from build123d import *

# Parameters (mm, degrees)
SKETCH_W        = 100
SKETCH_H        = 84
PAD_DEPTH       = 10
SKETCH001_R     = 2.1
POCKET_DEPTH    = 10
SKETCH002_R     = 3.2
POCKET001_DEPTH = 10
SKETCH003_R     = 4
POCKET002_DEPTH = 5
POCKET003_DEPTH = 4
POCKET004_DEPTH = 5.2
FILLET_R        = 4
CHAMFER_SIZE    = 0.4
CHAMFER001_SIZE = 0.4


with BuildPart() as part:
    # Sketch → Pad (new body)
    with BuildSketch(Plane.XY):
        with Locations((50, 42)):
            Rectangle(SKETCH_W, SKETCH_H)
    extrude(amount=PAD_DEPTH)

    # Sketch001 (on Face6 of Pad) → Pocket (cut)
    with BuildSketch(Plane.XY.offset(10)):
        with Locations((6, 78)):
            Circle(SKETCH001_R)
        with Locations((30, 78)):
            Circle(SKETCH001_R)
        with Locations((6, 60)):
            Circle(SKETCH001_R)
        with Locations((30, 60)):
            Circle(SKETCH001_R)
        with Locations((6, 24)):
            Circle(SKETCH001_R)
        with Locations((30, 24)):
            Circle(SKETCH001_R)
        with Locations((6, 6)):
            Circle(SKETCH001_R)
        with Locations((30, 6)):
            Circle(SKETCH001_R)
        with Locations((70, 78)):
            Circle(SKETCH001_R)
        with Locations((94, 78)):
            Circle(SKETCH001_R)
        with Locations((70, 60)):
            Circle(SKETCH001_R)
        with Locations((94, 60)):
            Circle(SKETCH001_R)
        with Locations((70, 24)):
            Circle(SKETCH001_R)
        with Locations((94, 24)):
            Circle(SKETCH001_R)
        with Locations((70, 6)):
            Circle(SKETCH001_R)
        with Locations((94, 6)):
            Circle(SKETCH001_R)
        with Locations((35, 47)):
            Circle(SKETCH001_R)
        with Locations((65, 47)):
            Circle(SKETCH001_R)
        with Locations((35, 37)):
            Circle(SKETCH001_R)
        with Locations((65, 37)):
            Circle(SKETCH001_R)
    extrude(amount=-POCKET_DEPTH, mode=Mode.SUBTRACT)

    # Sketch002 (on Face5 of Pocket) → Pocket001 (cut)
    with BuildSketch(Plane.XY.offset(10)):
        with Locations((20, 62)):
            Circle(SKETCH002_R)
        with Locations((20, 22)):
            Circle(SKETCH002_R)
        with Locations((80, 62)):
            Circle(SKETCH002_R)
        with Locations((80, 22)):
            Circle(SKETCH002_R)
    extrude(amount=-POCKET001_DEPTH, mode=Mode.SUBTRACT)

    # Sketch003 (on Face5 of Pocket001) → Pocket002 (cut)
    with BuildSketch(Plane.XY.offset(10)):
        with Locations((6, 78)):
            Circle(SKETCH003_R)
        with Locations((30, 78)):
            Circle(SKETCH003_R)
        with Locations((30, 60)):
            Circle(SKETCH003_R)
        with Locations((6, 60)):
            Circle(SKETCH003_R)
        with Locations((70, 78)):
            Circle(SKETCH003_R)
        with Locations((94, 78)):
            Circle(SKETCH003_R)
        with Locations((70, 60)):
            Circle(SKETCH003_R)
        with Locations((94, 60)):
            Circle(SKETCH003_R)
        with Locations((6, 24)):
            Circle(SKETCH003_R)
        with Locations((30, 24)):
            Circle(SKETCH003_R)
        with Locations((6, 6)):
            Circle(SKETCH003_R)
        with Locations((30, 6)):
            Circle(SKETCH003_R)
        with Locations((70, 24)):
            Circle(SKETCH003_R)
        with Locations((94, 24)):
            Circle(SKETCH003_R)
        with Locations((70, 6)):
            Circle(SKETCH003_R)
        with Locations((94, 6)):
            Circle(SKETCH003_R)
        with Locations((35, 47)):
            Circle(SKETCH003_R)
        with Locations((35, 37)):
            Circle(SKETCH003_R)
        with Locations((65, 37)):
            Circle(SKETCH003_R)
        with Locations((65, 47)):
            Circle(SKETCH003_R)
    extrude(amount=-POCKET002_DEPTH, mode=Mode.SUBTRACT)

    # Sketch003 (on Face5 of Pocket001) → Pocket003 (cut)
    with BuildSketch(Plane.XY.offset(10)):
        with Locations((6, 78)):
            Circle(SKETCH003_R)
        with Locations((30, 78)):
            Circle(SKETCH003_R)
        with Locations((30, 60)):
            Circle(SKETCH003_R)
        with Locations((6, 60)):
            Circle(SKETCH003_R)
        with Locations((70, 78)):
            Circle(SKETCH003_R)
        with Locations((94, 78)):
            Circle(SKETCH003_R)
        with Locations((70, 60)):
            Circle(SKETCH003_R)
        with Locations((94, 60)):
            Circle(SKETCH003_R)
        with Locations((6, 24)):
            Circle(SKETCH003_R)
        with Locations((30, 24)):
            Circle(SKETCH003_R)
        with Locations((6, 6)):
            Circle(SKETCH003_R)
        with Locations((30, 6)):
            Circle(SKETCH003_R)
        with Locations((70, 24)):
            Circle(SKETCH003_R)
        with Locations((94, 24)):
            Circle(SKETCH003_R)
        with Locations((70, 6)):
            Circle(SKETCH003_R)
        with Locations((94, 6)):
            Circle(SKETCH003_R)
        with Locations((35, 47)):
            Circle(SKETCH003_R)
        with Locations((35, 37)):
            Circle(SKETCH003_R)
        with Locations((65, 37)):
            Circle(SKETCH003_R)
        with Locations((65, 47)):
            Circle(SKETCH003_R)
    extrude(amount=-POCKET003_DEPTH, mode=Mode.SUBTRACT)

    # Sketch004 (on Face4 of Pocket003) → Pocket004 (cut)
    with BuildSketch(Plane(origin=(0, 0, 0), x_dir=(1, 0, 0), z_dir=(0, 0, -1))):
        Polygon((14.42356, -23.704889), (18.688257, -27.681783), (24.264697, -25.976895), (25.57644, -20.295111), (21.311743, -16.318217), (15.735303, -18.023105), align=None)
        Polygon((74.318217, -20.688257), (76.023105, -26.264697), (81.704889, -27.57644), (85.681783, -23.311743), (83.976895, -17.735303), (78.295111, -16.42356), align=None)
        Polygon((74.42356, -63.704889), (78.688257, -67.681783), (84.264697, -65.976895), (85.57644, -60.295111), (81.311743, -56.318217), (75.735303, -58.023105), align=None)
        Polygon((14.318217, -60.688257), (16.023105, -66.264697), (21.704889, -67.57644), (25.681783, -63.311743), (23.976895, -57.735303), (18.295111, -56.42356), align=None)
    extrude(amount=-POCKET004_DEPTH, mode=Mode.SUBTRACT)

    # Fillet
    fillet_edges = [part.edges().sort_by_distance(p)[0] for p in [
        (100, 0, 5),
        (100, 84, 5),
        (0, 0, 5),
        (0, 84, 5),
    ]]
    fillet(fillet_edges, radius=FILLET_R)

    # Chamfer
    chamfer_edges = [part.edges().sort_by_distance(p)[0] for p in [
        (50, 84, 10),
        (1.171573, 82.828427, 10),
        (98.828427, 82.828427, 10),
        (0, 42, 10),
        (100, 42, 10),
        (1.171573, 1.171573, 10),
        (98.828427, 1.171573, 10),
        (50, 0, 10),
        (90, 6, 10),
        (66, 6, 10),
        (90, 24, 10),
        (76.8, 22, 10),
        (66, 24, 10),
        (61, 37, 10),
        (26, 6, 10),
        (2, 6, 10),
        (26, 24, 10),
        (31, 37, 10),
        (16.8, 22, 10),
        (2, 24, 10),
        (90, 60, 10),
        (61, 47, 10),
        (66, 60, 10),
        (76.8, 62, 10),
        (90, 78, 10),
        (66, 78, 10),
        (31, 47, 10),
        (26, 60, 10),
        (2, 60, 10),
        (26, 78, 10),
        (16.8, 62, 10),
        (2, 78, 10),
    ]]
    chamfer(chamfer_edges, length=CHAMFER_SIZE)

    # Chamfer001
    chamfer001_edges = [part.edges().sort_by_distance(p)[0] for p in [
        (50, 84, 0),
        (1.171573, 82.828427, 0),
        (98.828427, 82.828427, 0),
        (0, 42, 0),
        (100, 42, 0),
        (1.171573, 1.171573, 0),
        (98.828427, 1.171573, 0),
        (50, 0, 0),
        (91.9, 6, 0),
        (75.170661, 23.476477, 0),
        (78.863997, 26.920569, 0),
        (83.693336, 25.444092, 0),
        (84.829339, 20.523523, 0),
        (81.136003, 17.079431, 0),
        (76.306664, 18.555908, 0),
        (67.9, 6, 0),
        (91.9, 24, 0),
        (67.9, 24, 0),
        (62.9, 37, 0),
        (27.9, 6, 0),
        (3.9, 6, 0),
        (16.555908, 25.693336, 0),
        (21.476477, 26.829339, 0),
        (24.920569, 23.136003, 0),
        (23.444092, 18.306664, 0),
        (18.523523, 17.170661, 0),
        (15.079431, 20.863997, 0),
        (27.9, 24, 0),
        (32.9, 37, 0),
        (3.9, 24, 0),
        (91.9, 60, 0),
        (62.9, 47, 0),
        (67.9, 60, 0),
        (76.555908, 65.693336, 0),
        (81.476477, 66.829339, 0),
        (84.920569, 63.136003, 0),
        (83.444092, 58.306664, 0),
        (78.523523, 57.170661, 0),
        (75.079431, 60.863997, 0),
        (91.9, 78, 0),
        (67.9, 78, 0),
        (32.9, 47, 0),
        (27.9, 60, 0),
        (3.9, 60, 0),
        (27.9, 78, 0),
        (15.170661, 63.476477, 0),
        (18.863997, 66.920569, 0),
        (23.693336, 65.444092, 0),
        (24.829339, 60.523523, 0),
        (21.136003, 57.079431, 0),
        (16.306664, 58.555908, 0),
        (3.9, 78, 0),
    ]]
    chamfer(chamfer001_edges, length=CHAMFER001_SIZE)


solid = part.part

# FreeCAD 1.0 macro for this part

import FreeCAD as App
import Part
import Sketcher
from FreeCAD import Vector
Q = App.Units.Quantity


def edges_at(feature, points):
    """Names of the edges that pass closest to the given points."""
    edges = feature.Shape.Edges
    near = lambda p: min(range(len(edges)), key=lambda i: edges[i].distToShape(Part.Vertex(*p))[0])
    return sorted({f"Edge{near(p) + 1}" for p in points})

doc = App.newDocument("Part")
body = doc.addObject("PartDesign::Body", "Body")

sketch1 = doc.addObject("Sketcher::SketchObject", "Sketch")
body.addObject(sketch1)
sketch1.AttachmentSupport = (doc.XY_Plane, [""])
sketch1.MapMode = "FlatFace"
sketch1.addGeometry([
    Part.LineSegment(Vector(0, 84, 0), Vector(0, 0, 0)),
    Part.LineSegment(Vector(0, 0, 0), Vector(100, 0, 0)),
    Part.LineSegment(Vector(100, 0, 0), Vector(100, 84, 0)),
    Part.LineSegment(Vector(100, 84, 0), Vector(0, 84, 0)),
], False)
sketch1.addConstraint([
    Sketcher.Constraint("Coincident", 0, 2, 1, 1),
    Sketcher.Constraint("Coincident", 1, 2, 2, 1),
    Sketcher.Constraint("Coincident", 2, 2, 3, 1),
    Sketcher.Constraint("Coincident", 3, 2, 0, 1),
    Sketcher.Constraint("Vertical", 0),
    Sketcher.Constraint("Horizontal", 1),
    Sketcher.Constraint("Vertical", 2),
    Sketcher.Constraint("Horizontal", 3),
    Sketcher.Constraint("Coincident", 0, 2, -1, 1),
    Sketcher.Constraint("DistanceX", 1, 1, 1, 2, 100.0),
    Sketcher.Constraint("DistanceY", 0, 2, 0, 1, 84.0),
])
pad1 = doc.addObject("PartDesign::Pad", "Pad")
body.addObject(pad1)
pad1.Profile = sketch1
pad1.Length = 10

sketch2 = doc.addObject("Sketcher::SketchObject", "Sketch001")
body.addObject(sketch2)
sketch2.AttachmentSupport = (doc.XY_Plane, [""])
sketch2.MapMode = "FlatFace"
sketch2.AttachmentOffset = App.Placement(Vector(0, 0, 10), App.Rotation())
sketch2.addGeometry([
    Part.Circle(Vector(6, 78, 0), Vector(0, 0, 1), 2.1),
    Part.Circle(Vector(30, 78, 0), Vector(0, 0, 1), 2.1),
    Part.Circle(Vector(6, 60, 0), Vector(0, 0, 1), 2.1),
    Part.Circle(Vector(30, 60, 0), Vector(0, 0, 1), 2.1),
    Part.Circle(Vector(6, 24, 0), Vector(0, 0, 1), 2.1),
    Part.Circle(Vector(30, 24, 0), Vector(0, 0, 1), 2.1),
    Part.Circle(Vector(6, 6, 0), Vector(0, 0, 1), 2.1),
    Part.Circle(Vector(30, 6, 0), Vector(0, 0, 1), 2.1),
    Part.Circle(Vector(70, 78, 0), Vector(0, 0, 1), 2.1),
    Part.Circle(Vector(94, 78, 0), Vector(0, 0, 1), 2.1),
    Part.Circle(Vector(70, 60, 0), Vector(0, 0, 1), 2.1),
    Part.Circle(Vector(94, 60, 0), Vector(0, 0, 1), 2.1),
    Part.Circle(Vector(70, 24, 0), Vector(0, 0, 1), 2.1),
    Part.Circle(Vector(94, 24, 0), Vector(0, 0, 1), 2.1),
    Part.Circle(Vector(70, 6, 0), Vector(0, 0, 1), 2.1),
    Part.Circle(Vector(94, 6, 0), Vector(0, 0, 1), 2.1),
    Part.Circle(Vector(35, 47, 0), Vector(0, 0, 1), 2.1),
    Part.Circle(Vector(65, 47, 0), Vector(0, 0, 1), 2.1),
    Part.Circle(Vector(35, 37, 0), Vector(0, 0, 1), 2.1),
    Part.Circle(Vector(65, 37, 0), Vector(0, 0, 1), 2.1),
], False)
sketch2.addConstraint([
    Sketcher.Constraint("Equal", 0, 1),
    Sketcher.Constraint("Equal", 1, 2),
    Sketcher.Constraint("Equal", 2, 3),
    Sketcher.Constraint("Equal", 3, 4),
    Sketcher.Constraint("Equal", 4, 5),
    Sketcher.Constraint("Equal", 5, 6),
    Sketcher.Constraint("Equal", 6, 7),
    Sketcher.Constraint("Equal", 7, 8),
    Sketcher.Constraint("Equal", 8, 9),
    Sketcher.Constraint("Equal", 9, 10),
    Sketcher.Constraint("Equal", 10, 11),
    Sketcher.Constraint("Equal", 11, 12),
    Sketcher.Constraint("Equal", 12, 13),
    Sketcher.Constraint("Equal", 13, 14),
    Sketcher.Constraint("Equal", 14, 15),
    Sketcher.Constraint("Equal", 15, 16),
    Sketcher.Constraint("Equal", 16, 17),
    Sketcher.Constraint("Equal", 17, 18),
    Sketcher.Constraint("Equal", 18, 19),
    Sketcher.Constraint("Horizontal", 0, 3, 1, 3),
    Sketcher.Constraint("Horizontal", 2, 3, 3, 3),
    Sketcher.Constraint("Horizontal", 4, 3, 5, 3),
    Sketcher.Constraint("Horizontal", 6, 3, 7, 3),
    Sketcher.Constraint("Horizontal", 1, 3, 8, 3),
    Sketcher.Constraint("Horizontal", 8, 3, 9, 3),
    Sketcher.Constraint("Horizontal", 3, 3, 10, 3),
    Sketcher.Constraint("Horizontal", 10, 3, 11, 3),
    Sketcher.Constraint("Horizontal", 5, 3, 12, 3),
    Sketcher.Constraint("Horizontal", 12, 3, 13, 3),
    Sketcher.Constraint("Horizontal", 7, 3, 14, 3),
    Sketcher.Constraint("Horizontal", 14, 3, 15, 3),
    Sketcher.Constraint("Horizontal", 16, 3, 17, 3),
    Sketcher.Constraint("Horizontal", 18, 3, 19, 3),
    Sketcher.Constraint("Vertical", 0, 3, 2, 3),
    Sketcher.Constraint("Vertical", 1, 3, 3, 3),
    Sketcher.Constraint("Vertical", 2, 3, 4, 3),
    Sketcher.Constraint("Vertical", 3, 3, 5, 3),
    Sketcher.Constraint("Vertical", 4, 3, 6, 3),
    Sketcher.Constraint("Vertical", 5, 3, 7, 3),
    Sketcher.Constraint("Vertical", 8, 3, 10, 3),
    Sketcher.Constraint("Vertical", 9, 3, 11, 3),
    Sketcher.Constraint("Vertical", 10, 3, 12, 3),
    Sketcher.Constraint("Vertical", 11, 3, 13, 3),
    Sketcher.Constraint("Vertical", 12, 3, 14, 3),
    Sketcher.Constraint("Vertical", 13, 3, 15, 3),
    Sketcher.Constraint("Vertical", 16, 3, 18, 3),
    Sketcher.Constraint("Vertical", 17, 3, 19, 3),
    Sketcher.Constraint("Diameter", 0, 4.2),
    Sketcher.Constraint("DistanceX", -1, 1, 0, 3, 6.0),
    Sketcher.Constraint("DistanceY", -1, 1, 0, 3, 78.0),
    Sketcher.Constraint("DistanceX", -1, 1, 1, 3, 30.0),
    Sketcher.Constraint("DistanceY", -1, 1, 2, 3, 60.0),
    Sketcher.Constraint("DistanceY", -1, 1, 4, 3, 24.0),
    Sketcher.Constraint("DistanceY", -1, 1, 6, 3, 6.0),
    Sketcher.Constraint("DistanceX", -1, 1, 8, 3, 70.0),
    Sketcher.Constraint("DistanceX", -1, 1, 9, 3, 94.0),
    Sketcher.Constraint("DistanceX", -1, 1, 16, 3, 35.0),
    Sketcher.Constraint("DistanceY", -1, 1, 16, 3, 47.0),
    Sketcher.Constraint("DistanceX", -1, 1, 17, 3, 65.0),
    Sketcher.Constraint("DistanceY", -1, 1, 18, 3, 37.0),
])
pocket1 = doc.addObject("PartDesign::Pocket", "Pocket")
body.addObject(pocket1)
pocket1.Profile = sketch2
pocket1.Length = 10

sketch3 = doc.addObject("Sketcher::SketchObject", "Sketch002")
body.addObject(sketch3)
sketch3.AttachmentSupport = (doc.XY_Plane, [""])
sketch3.MapMode = "FlatFace"
sketch3.AttachmentOffset = App.Placement(Vector(0, 0, 10), App.Rotation())
sketch3.addGeometry([
    Part.Circle(Vector(20, 62, 0), Vector(0, 0, 1), 3.2),
    Part.Circle(Vector(20, 22, 0), Vector(0, 0, 1), 3.2),
    Part.Circle(Vector(80, 62, 0), Vector(0, 0, 1), 3.2),
    Part.Circle(Vector(80, 22, 0), Vector(0, 0, 1), 3.2),
], False)
sketch3.addConstraint([
    Sketcher.Constraint("Equal", 0, 1),
    Sketcher.Constraint("Equal", 1, 2),
    Sketcher.Constraint("Equal", 2, 3),
    Sketcher.Constraint("Horizontal", 0, 3, 2, 3),
    Sketcher.Constraint("Horizontal", 1, 3, 3, 3),
    Sketcher.Constraint("Vertical", 0, 3, 1, 3),
    Sketcher.Constraint("Vertical", 2, 3, 3, 3),
    Sketcher.Constraint("Diameter", 0, 6.4),
    Sketcher.Constraint("DistanceX", -1, 1, 0, 3, 20.0),
    Sketcher.Constraint("DistanceY", -1, 1, 0, 3, 62.0),
    Sketcher.Constraint("DistanceY", -1, 1, 1, 3, 22.0),
    Sketcher.Constraint("DistanceX", -1, 1, 2, 3, 80.0),
])
pocket2 = doc.addObject("PartDesign::Pocket", "Pocket001")
body.addObject(pocket2)
pocket2.Profile = sketch3
pocket2.Length = 10

sketch4 = doc.addObject("Sketcher::SketchObject", "Sketch003")
body.addObject(sketch4)
sketch4.AttachmentSupport = (doc.XY_Plane, [""])
sketch4.MapMode = "FlatFace"
sketch4.AttachmentOffset = App.Placement(Vector(0, 0, 10), App.Rotation())
sketch4.addGeometry([
    Part.Circle(Vector(6, 78, 0), Vector(0, 0, 1), 4),
    Part.Circle(Vector(30, 78, 0), Vector(0, 0, 1), 4),
    Part.Circle(Vector(30, 60, 0), Vector(0, 0, 1), 4),
    Part.Circle(Vector(6, 60, 0), Vector(0, 0, 1), 4),
    Part.Circle(Vector(70, 78, 0), Vector(0, 0, 1), 4),
    Part.Circle(Vector(94, 78, 0), Vector(0, 0, 1), 4),
    Part.Circle(Vector(70, 60, 0), Vector(0, 0, 1), 4),
    Part.Circle(Vector(94, 60, 0), Vector(0, 0, 1), 4),
    Part.Circle(Vector(6, 24, 0), Vector(0, 0, 1), 4),
    Part.Circle(Vector(30, 24, 0), Vector(0, 0, 1), 4),
    Part.Circle(Vector(6, 6, 0), Vector(0, 0, 1), 4),
    Part.Circle(Vector(30, 6, 0), Vector(0, 0, 1), 4),
    Part.Circle(Vector(70, 24, 0), Vector(0, 0, 1), 4),
    Part.Circle(Vector(94, 24, 0), Vector(0, 0, 1), 4),
    Part.Circle(Vector(70, 6, 0), Vector(0, 0, 1), 4),
    Part.Circle(Vector(94, 6, 0), Vector(0, 0, 1), 4),
    Part.Circle(Vector(35, 47, 0), Vector(0, 0, 1), 4),
    Part.Circle(Vector(35, 37, 0), Vector(0, 0, 1), 4),
    Part.Circle(Vector(65, 37, 0), Vector(0, 0, 1), 4),
    Part.Circle(Vector(65, 47, 0), Vector(0, 0, 1), 4),
], False)
sketch4.addConstraint([
    Sketcher.Constraint("Equal", 0, 1),
    Sketcher.Constraint("Equal", 1, 2),
    Sketcher.Constraint("Equal", 2, 3),
    Sketcher.Constraint("Equal", 3, 4),
    Sketcher.Constraint("Equal", 4, 5),
    Sketcher.Constraint("Equal", 5, 6),
    Sketcher.Constraint("Equal", 6, 7),
    Sketcher.Constraint("Equal", 7, 8),
    Sketcher.Constraint("Equal", 8, 9),
    Sketcher.Constraint("Equal", 9, 10),
    Sketcher.Constraint("Equal", 10, 11),
    Sketcher.Constraint("Equal", 11, 12),
    Sketcher.Constraint("Equal", 12, 13),
    Sketcher.Constraint("Equal", 13, 14),
    Sketcher.Constraint("Equal", 14, 15),
    Sketcher.Constraint("Equal", 15, 16),
    Sketcher.Constraint("Equal", 16, 17),
    Sketcher.Constraint("Equal", 17, 18),
    Sketcher.Constraint("Equal", 18, 19),
    Sketcher.Constraint("Horizontal", 0, 3, 1, 3),
    Sketcher.Constraint("Horizontal", 2, 3, 3, 3),
    Sketcher.Constraint("Horizontal", 1, 3, 4, 3),
    Sketcher.Constraint("Horizontal", 4, 3, 5, 3),
    Sketcher.Constraint("Horizontal", 3, 3, 6, 3),
    Sketcher.Constraint("Horizontal", 6, 3, 7, 3),
    Sketcher.Constraint("Horizontal", 8, 3, 9, 3),
    Sketcher.Constraint("Horizontal", 10, 3, 11, 3),
    Sketcher.Constraint("Horizontal", 9, 3, 12, 3),
    Sketcher.Constraint("Horizontal", 12, 3, 13, 3),
    Sketcher.Constraint("Horizontal", 11, 3, 14, 3),
    Sketcher.Constraint("Horizontal", 14, 3, 15, 3),
    Sketcher.Constraint("Horizontal", 17, 3, 18, 3),
    Sketcher.Constraint("Horizontal", 16, 3, 19, 3),
    Sketcher.Constraint("Vertical", 1, 3, 2, 3),
    Sketcher.Constraint("Vertical", 0, 3, 3, 3),
    Sketcher.Constraint("Vertical", 4, 3, 6, 3),
    Sketcher.Constraint("Vertical", 5, 3, 7, 3),
    Sketcher.Constraint("Vertical", 3, 3, 8, 3),
    Sketcher.Constraint("Vertical", 2, 3, 9, 3),
    Sketcher.Constraint("Vertical", 8, 3, 10, 3),
    Sketcher.Constraint("Vertical", 9, 3, 11, 3),
    Sketcher.Constraint("Vertical", 6, 3, 12, 3),
    Sketcher.Constraint("Vertical", 7, 3, 13, 3),
    Sketcher.Constraint("Vertical", 12, 3, 14, 3),
    Sketcher.Constraint("Vertical", 13, 3, 15, 3),
    Sketcher.Constraint("Vertical", 16, 3, 17, 3),
    Sketcher.Constraint("Vertical", 18, 3, 19, 3),
    Sketcher.Constraint("Diameter", 0, 8.0),
    Sketcher.Constraint("DistanceX", -1, 1, 0, 3, 6.0),
    Sketcher.Constraint("DistanceY", -1, 1, 0, 3, 78.0),
    Sketcher.Constraint("DistanceX", -1, 1, 1, 3, 30.0),
    Sketcher.Constraint("DistanceY", -1, 1, 2, 3, 60.0),
    Sketcher.Constraint("DistanceX", -1, 1, 4, 3, 70.0),
    Sketcher.Constraint("DistanceX", -1, 1, 5, 3, 94.0),
    Sketcher.Constraint("DistanceY", -1, 1, 8, 3, 24.0),
    Sketcher.Constraint("DistanceY", -1, 1, 10, 3, 6.0),
    Sketcher.Constraint("DistanceX", -1, 1, 16, 3, 35.0),
    Sketcher.Constraint("DistanceY", -1, 1, 16, 3, 47.0),
    Sketcher.Constraint("DistanceY", -1, 1, 17, 3, 37.0),
    Sketcher.Constraint("DistanceX", -1, 1, 18, 3, 65.0),
])
pocket3 = doc.addObject("PartDesign::Pocket", "Pocket002")
body.addObject(pocket3)
pocket3.Profile = sketch4
pocket3.Length = 5

sketch5 = doc.addObject("Sketcher::SketchObject", "Sketch004")
body.addObject(sketch5)
sketch5.AttachmentSupport = (doc.XY_Plane, [""])
sketch5.MapMode = "FlatFace"
sketch5.AttachmentOffset = App.Placement(Vector(0, 0, 10), App.Rotation())
sketch5.addGeometry([
    Part.Circle(Vector(6, 78, 0), Vector(0, 0, 1), 4),
    Part.Circle(Vector(30, 78, 0), Vector(0, 0, 1), 4),
    Part.Circle(Vector(30, 60, 0), Vector(0, 0, 1), 4),
    Part.Circle(Vector(6, 60, 0), Vector(0, 0, 1), 4),
    Part.Circle(Vector(70, 78, 0), Vector(0, 0, 1), 4),
    Part.Circle(Vector(94, 78, 0), Vector(0, 0, 1), 4),
    Part.Circle(Vector(70, 60, 0), Vector(0, 0, 1), 4),
    Part.Circle(Vector(94, 60, 0), Vector(0, 0, 1), 4),
    Part.Circle(Vector(6, 24, 0), Vector(0, 0, 1), 4),
    Part.Circle(Vector(30, 24, 0), Vector(0, 0, 1), 4),
    Part.Circle(Vector(6, 6, 0), Vector(0, 0, 1), 4),
    Part.Circle(Vector(30, 6, 0), Vector(0, 0, 1), 4),
    Part.Circle(Vector(70, 24, 0), Vector(0, 0, 1), 4),
    Part.Circle(Vector(94, 24, 0), Vector(0, 0, 1), 4),
    Part.Circle(Vector(70, 6, 0), Vector(0, 0, 1), 4),
    Part.Circle(Vector(94, 6, 0), Vector(0, 0, 1), 4),
    Part.Circle(Vector(35, 47, 0), Vector(0, 0, 1), 4),
    Part.Circle(Vector(35, 37, 0), Vector(0, 0, 1), 4),
    Part.Circle(Vector(65, 37, 0), Vector(0, 0, 1), 4),
    Part.Circle(Vector(65, 47, 0), Vector(0, 0, 1), 4),
], False)
sketch5.addConstraint([
    Sketcher.Constraint("Equal", 0, 1),
    Sketcher.Constraint("Equal", 1, 2),
    Sketcher.Constraint("Equal", 2, 3),
    Sketcher.Constraint("Equal", 3, 4),
    Sketcher.Constraint("Equal", 4, 5),
    Sketcher.Constraint("Equal", 5, 6),
    Sketcher.Constraint("Equal", 6, 7),
    Sketcher.Constraint("Equal", 7, 8),
    Sketcher.Constraint("Equal", 8, 9),
    Sketcher.Constraint("Equal", 9, 10),
    Sketcher.Constraint("Equal", 10, 11),
    Sketcher.Constraint("Equal", 11, 12),
    Sketcher.Constraint("Equal", 12, 13),
    Sketcher.Constraint("Equal", 13, 14),
    Sketcher.Constraint("Equal", 14, 15),
    Sketcher.Constraint("Equal", 15, 16),
    Sketcher.Constraint("Equal", 16, 17),
    Sketcher.Constraint("Equal", 17, 18),
    Sketcher.Constraint("Equal", 18, 19),
    Sketcher.Constraint("Horizontal", 0, 3, 1, 3),
    Sketcher.Constraint("Horizontal", 2, 3, 3, 3),
    Sketcher.Constraint("Horizontal", 1, 3, 4, 3),
    Sketcher.Constraint("Horizontal", 4, 3, 5, 3),
    Sketcher.Constraint("Horizontal", 3, 3, 6, 3),
    Sketcher.Constraint("Horizontal", 6, 3, 7, 3),
    Sketcher.Constraint("Horizontal", 8, 3, 9, 3),
    Sketcher.Constraint("Horizontal", 10, 3, 11, 3),
    Sketcher.Constraint("Horizontal", 9, 3, 12, 3),
    Sketcher.Constraint("Horizontal", 12, 3, 13, 3),
    Sketcher.Constraint("Horizontal", 11, 3, 14, 3),
    Sketcher.Constraint("Horizontal", 14, 3, 15, 3),
    Sketcher.Constraint("Horizontal", 17, 3, 18, 3),
    Sketcher.Constraint("Horizontal", 16, 3, 19, 3),
    Sketcher.Constraint("Vertical", 1, 3, 2, 3),
    Sketcher.Constraint("Vertical", 0, 3, 3, 3),
    Sketcher.Constraint("Vertical", 4, 3, 6, 3),
    Sketcher.Constraint("Vertical", 5, 3, 7, 3),
    Sketcher.Constraint("Vertical", 3, 3, 8, 3),
    Sketcher.Constraint("Vertical", 2, 3, 9, 3),
    Sketcher.Constraint("Vertical", 8, 3, 10, 3),
    Sketcher.Constraint("Vertical", 9, 3, 11, 3),
    Sketcher.Constraint("Vertical", 6, 3, 12, 3),
    Sketcher.Constraint("Vertical", 7, 3, 13, 3),
    Sketcher.Constraint("Vertical", 12, 3, 14, 3),
    Sketcher.Constraint("Vertical", 13, 3, 15, 3),
    Sketcher.Constraint("Vertical", 16, 3, 17, 3),
    Sketcher.Constraint("Vertical", 18, 3, 19, 3),
    Sketcher.Constraint("Diameter", 0, 8.0),
    Sketcher.Constraint("DistanceX", -1, 1, 0, 3, 6.0),
    Sketcher.Constraint("DistanceY", -1, 1, 0, 3, 78.0),
    Sketcher.Constraint("DistanceX", -1, 1, 1, 3, 30.0),
    Sketcher.Constraint("DistanceY", -1, 1, 2, 3, 60.0),
    Sketcher.Constraint("DistanceX", -1, 1, 4, 3, 70.0),
    Sketcher.Constraint("DistanceX", -1, 1, 5, 3, 94.0),
    Sketcher.Constraint("DistanceY", -1, 1, 8, 3, 24.0),
    Sketcher.Constraint("DistanceY", -1, 1, 10, 3, 6.0),
    Sketcher.Constraint("DistanceX", -1, 1, 16, 3, 35.0),
    Sketcher.Constraint("DistanceY", -1, 1, 16, 3, 47.0),
    Sketcher.Constraint("DistanceY", -1, 1, 17, 3, 37.0),
    Sketcher.Constraint("DistanceX", -1, 1, 18, 3, 65.0),
])
pocket4 = doc.addObject("PartDesign::Pocket", "Pocket003")
body.addObject(pocket4)
pocket4.Profile = sketch5
pocket4.Length = 4

sketch6 = doc.addObject("Sketcher::SketchObject", "Sketch005")
body.addObject(sketch6)
sketch6.AttachmentSupport = (doc.XY_Plane, [""])
sketch6.MapMode = "FlatFace"
sketch6.addGeometry([
    Part.LineSegment(Vector(14, 24, 0), Vector(19, 28, 0)),
    Part.LineSegment(Vector(19, 28, 0), Vector(24, 26, 0)),
    Part.LineSegment(Vector(24, 26, 0), Vector(26, 20, 0)),
    Part.LineSegment(Vector(26, 20, 0), Vector(21, 16, 0)),
    Part.LineSegment(Vector(21, 16, 0), Vector(16, 18, 0)),
    Part.LineSegment(Vector(16, 18, 0), Vector(14, 24, 0)),
    Part.LineSegment(Vector(74, 21, 0), Vector(76, 26, 0)),
    Part.LineSegment(Vector(76, 26, 0), Vector(82, 28, 0)),
    Part.LineSegment(Vector(82, 28, 0), Vector(86, 23, 0)),
    Part.LineSegment(Vector(86, 23, 0), Vector(84, 18, 0)),
    Part.LineSegment(Vector(84, 18, 0), Vector(78, 16, 0)),
    Part.LineSegment(Vector(78, 16, 0), Vector(74, 21, 0)),
    Part.LineSegment(Vector(74, 64, 0), Vector(79, 68, 0)),
    Part.LineSegment(Vector(79, 68, 0), Vector(84, 66, 0)),
    Part.LineSegment(Vector(84, 66, 0), Vector(86, 60, 0)),
    Part.LineSegment(Vector(86, 60, 0), Vector(81, 56, 0)),
    Part.LineSegment(Vector(81, 56, 0), Vector(76, 58, 0)),
    Part.LineSegment(Vector(76, 58, 0), Vector(74, 64, 0)),
    Part.LineSegment(Vector(14, 61, 0), Vector(16, 66, 0)),
    Part.LineSegment(Vector(16, 66, 0), Vector(22, 68, 0)),
    Part.LineSegment(Vector(22, 68, 0), Vector(26, 63, 0)),
    Part.LineSegment(Vector(26, 63, 0), Vector(24, 58, 0)),
    Part.LineSegment(Vector(24, 58, 0), Vector(18, 56, 0)),
    Part.LineSegment(Vector(18, 56, 0), Vector(14, 61, 0)),
], False)
sketch6.addConstraint([
    Sketcher.Constraint("Coincident", 0, 2, 1, 1),
    Sketcher.Constraint("Coincident", 1, 2, 2, 1),
    Sketcher.Constraint("Coincident", 2, 2, 3, 1),
    Sketcher.Constraint("Coincident", 3, 2, 4, 1),
    Sketcher.Constraint("Coincident", 4, 2, 5, 1),
    Sketcher.Constraint("Coincident", 5, 2, 0, 1),
    Sketcher.Constraint("Coincident", 6, 2, 7, 1),
    Sketcher.Constraint("Coincident", 7, 2, 8, 1),
    Sketcher.Constraint("Coincident", 8, 2, 9, 1),
    Sketcher.Constraint("Coincident", 9, 2, 10, 1),
    Sketcher.Constraint("Coincident", 10, 2, 11, 1),
    Sketcher.Constraint("Coincident", 11, 2, 6, 1),
    Sketcher.Constraint("Coincident", 12, 2, 13, 1),
    Sketcher.Constraint("Coincident", 13, 2, 14, 1),
    Sketcher.Constraint("Coincident", 14, 2, 15, 1),
    Sketcher.Constraint("Coincident", 15, 2, 16, 1),
    Sketcher.Constraint("Coincident", 16, 2, 17, 1),
    Sketcher.Constraint("Coincident", 17, 2, 12, 1),
    Sketcher.Constraint("Coincident", 18, 2, 19, 1),
    Sketcher.Constraint("Coincident", 19, 2, 20, 1),
    Sketcher.Constraint("Coincident", 20, 2, 21, 1),
    Sketcher.Constraint("Coincident", 21, 2, 22, 1),
    Sketcher.Constraint("Coincident", 22, 2, 23, 1),
    Sketcher.Constraint("Coincident", 23, 2, 18, 1),
    Sketcher.Constraint("Parallel", 0, 3),
    Sketcher.Constraint("Parallel", 1, 4),
    Sketcher.Constraint("Parallel", 2, 5),
    Sketcher.Constraint("Perpendicular", 4, 6),
    Sketcher.Constraint("Perpendicular", 5, 7),
    Sketcher.Constraint("Perpendicular", 3, 8),
    Sketcher.Constraint("Parallel", 6, 9),
    Sketcher.Constraint("Parallel", 7, 10),
    Sketcher.Constraint("Parallel", 8, 11),
    Sketcher.Constraint("Perpendicular", 11, 12),
    Sketcher.Constraint("Perpendicular", 9, 13),
    Sketcher.Constraint("Perpendicular", 10, 14),
    Sketcher.Constraint("Parallel", 12, 15),
    Sketcher.Constraint("Parallel", 13, 16),
    Sketcher.Constraint("Parallel", 14, 17),
    Sketcher.Constraint("Perpendicular", 16, 18),
    Sketcher.Constraint("Perpendicular", 17, 19),
    Sketcher.Constraint("Perpendicular", 15, 20),
    Sketcher.Constraint("Parallel", 18, 21),
    Sketcher.Constraint("Parallel", 19, 22),
    Sketcher.Constraint("Parallel", 20, 23),
    Sketcher.Constraint("Equal", 0, 1),
    Sketcher.Constraint("Equal", 1, 2),
    Sketcher.Constraint("Equal", 2, 3),
    Sketcher.Constraint("Equal", 5, 6),
    Sketcher.Constraint("Equal", 6, 7),
    Sketcher.Constraint("Equal", 7, 8),
    Sketcher.Constraint("Equal", 8, 9),
    Sketcher.Constraint("Equal", 11, 12),
    Sketcher.Constraint("Equal", 12, 13),
    Sketcher.Constraint("Equal", 13, 14),
    Sketcher.Constraint("Equal", 14, 15),
    Sketcher.Constraint("Equal", 17, 18),
    Sketcher.Constraint("Equal", 18, 19),
    Sketcher.Constraint("Equal", 19, 20),
    Sketcher.Constraint("Equal", 20, 21),
    Sketcher.Constraint("Angle", 0, Q("42.999998 deg")),
    Sketcher.Constraint("Angle", 1, Q("-16.999992 deg")),
    Sketcher.Constraint("Angle", 2, Q("-77.000002 deg")),
    Sketcher.Constraint("Distance", 2, 5.831238),
    Sketcher.Constraint("DistanceX", -1, 1, 2, 2, 25.57644),
    Sketcher.Constraint("DistanceY", -1, 1, 2, 2, 20.295111),
    Sketcher.Constraint("DistanceX", -1, 1, 7, 2, 81.704889),
    Sketcher.Constraint("DistanceY", -1, 1, 7, 2, 27.57644),
    Sketcher.Constraint("DistanceX", -1, 1, 14, 2, 85.57644),
    Sketcher.Constraint("DistanceY", -1, 1, 14, 2, 60.295111),
    Sketcher.Constraint("DistanceX", -1, 1, 19, 2, 21.704889),
    Sketcher.Constraint("DistanceY", -1, 1, 19, 2, 67.57644),
])
pocket5 = doc.addObject("PartDesign::Pocket", "Pocket004")
body.addObject(pocket5)
pocket5.Profile = sketch6
pocket5.Length = 5.2
pocket5.Reversed = True
doc.recompute()

fillet = doc.addObject("PartDesign::Fillet", "Fillet")
body.addObject(fillet)
fillet.Base = (pocket5, edges_at(pocket5, [
    (100, 0, 5),
    (100, 84, 5),
    (0, 0, 5),
    (0, 84, 5),
]))
fillet.Radius = 4
doc.recompute()

chamfer = doc.addObject("PartDesign::Chamfer", "Chamfer")
body.addObject(chamfer)
chamfer.Base = (fillet, edges_at(fillet, [
    (50, 84, 10),
    (1.172, 82.828, 10),
    (98.828, 82.828, 10),
    (0, 42, 10),
    (100, 42, 10),
    (1.172, 1.172, 10),
    (98.828, 1.172, 10),
    (50, 0, 10),
    (90, 6, 10),
    (66, 6, 10),
    (90, 24, 10),
    (76.8, 22, 10),
    (66, 24, 10),
    (61, 37, 10),
    (26, 6, 10),
    (2, 6, 10),
    (26, 24, 10),
    (31, 37, 10),
    (16.8, 22, 10),
    (2, 24, 10),
    (90, 60, 10),
    (61, 47, 10),
    (66, 60, 10),
    (76.8, 62, 10),
    (90, 78, 10),
    (66, 78, 10),
    (31, 47, 10),
    (26, 60, 10),
    (2, 60, 10),
    (26, 78, 10),
    (16.8, 62, 10),
    (2, 78, 10),
]))
chamfer.Size = 0.4
doc.recompute()

chamfer2 = doc.addObject("PartDesign::Chamfer", "Chamfer001")
body.addObject(chamfer2)
chamfer2.Base = (chamfer, edges_at(chamfer, [
    (50, 84, 0),
    (1.172, 82.828, 0),
    (98.828, 82.828, 0),
    (0, 42, 0),
    (100, 42, 0),
    (1.172, 1.172, 0),
    (98.828, 1.172, 0),
    (50, 0, 0),
    (91.9, 6, 0),
    (75.171, 23.476, 0),
    (78.864, 26.921, 0),
    (83.693, 25.444, 0),
    (84.829, 20.524, 0),
    (81.136, 17.079, 0),
    (76.307, 18.556, 0),
    (67.9, 6, 0),
    (91.9, 24, 0),
    (67.9, 24, 0),
    (62.9, 37, 0),
    (27.9, 6, 0),
    (3.9, 6, 0),
    (16.556, 25.693, 0),
    (21.476, 26.829, 0),
    (24.921, 23.136, 0),
    (23.444, 18.307, 0),
    (18.524, 17.171, 0),
    (15.079, 20.864, 0),
    (27.9, 24, 0),
    (32.9, 37, 0),
    (3.9, 24, 0),
    (91.9, 60, 0),
    (62.9, 47, 0),
    (67.9, 60, 0),
    (76.556, 65.693, 0),
    (81.476, 66.829, 0),
    (84.921, 63.136, 0),
    (83.444, 58.307, 0),
    (78.524, 57.171, 0),
    (75.079, 60.864, 0),
    (91.9, 78, 0),
    (67.9, 78, 0),
    (32.9, 47, 0),
    (27.9, 60, 0),
    (3.9, 60, 0),
    (27.9, 78, 0),
    (15.171, 63.476, 0),
    (18.864, 66.921, 0),
    (23.693, 65.444, 0),
    (24.829, 60.524, 0),
    (21.136, 57.079, 0),
    (16.307, 58.556, 0),
    (3.9, 78, 0),
]))
chamfer2.Size = 0.4

doc.recompute()
